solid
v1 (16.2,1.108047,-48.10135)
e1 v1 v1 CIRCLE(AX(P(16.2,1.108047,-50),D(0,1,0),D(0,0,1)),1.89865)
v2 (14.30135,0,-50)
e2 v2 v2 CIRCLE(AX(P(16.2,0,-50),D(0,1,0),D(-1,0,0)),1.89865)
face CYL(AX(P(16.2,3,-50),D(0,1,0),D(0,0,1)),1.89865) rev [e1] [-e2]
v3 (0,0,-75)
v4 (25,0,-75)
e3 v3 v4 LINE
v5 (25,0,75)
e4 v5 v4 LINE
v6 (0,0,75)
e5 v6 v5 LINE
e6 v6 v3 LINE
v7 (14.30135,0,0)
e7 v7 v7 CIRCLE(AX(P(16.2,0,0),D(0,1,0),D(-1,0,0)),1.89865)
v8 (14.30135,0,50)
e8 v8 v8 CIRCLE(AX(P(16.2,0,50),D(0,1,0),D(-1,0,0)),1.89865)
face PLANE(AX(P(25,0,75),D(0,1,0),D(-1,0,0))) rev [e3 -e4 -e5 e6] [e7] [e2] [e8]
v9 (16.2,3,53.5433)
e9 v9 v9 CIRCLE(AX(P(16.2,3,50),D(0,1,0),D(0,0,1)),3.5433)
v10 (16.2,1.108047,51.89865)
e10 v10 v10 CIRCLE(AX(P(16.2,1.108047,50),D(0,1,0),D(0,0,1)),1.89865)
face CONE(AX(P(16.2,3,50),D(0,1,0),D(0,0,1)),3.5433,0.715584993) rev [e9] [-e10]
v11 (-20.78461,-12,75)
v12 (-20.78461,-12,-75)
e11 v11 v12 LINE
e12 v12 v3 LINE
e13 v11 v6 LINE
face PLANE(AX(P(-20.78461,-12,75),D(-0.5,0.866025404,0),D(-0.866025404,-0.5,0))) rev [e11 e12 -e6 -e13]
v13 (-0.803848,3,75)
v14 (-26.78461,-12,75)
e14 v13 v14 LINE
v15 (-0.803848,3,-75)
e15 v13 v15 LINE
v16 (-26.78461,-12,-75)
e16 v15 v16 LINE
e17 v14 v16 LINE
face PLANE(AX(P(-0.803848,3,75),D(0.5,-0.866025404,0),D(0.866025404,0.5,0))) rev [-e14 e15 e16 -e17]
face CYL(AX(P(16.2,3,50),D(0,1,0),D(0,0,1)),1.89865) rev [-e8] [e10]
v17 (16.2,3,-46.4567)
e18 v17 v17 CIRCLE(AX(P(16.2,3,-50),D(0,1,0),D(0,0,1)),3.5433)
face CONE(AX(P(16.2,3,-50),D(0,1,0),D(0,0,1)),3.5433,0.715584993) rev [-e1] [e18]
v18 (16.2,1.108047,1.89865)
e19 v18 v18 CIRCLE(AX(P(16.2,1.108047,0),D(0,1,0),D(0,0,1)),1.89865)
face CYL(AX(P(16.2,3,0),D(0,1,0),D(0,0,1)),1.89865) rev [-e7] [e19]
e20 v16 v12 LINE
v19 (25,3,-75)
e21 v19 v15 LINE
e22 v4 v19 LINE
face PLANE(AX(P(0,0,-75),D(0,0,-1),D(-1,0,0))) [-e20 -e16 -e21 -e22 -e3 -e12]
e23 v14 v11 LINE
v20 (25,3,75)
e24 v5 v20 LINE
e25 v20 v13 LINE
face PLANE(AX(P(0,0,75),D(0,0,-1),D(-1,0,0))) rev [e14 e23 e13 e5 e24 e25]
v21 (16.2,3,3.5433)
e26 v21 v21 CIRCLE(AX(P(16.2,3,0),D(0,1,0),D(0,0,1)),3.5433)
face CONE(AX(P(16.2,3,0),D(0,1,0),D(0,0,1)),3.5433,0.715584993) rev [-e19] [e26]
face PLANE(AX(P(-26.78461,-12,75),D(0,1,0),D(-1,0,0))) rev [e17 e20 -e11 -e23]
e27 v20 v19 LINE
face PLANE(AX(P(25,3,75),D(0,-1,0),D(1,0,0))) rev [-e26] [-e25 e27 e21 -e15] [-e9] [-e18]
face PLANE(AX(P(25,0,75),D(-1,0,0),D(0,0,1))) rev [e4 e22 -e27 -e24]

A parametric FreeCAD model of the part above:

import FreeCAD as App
import Part
import Sketcher

V = App.Vector
Q = App.Units.Quantity


def add_polygon(sketch, points):
    """Adds a closed chain of lines whose ends are joined by coincident constraints."""
    first, n = sketch.GeometryCount, len(points)
    for a, b in zip(points, points[1:] + points[:1]):
        sketch.addGeometry(Part.LineSegment(App.Vector(*a, 0), App.Vector(*b, 0)), False)
    for i in range(n):
        sketch.addConstraint(Sketcher.Constraint("Coincident", first + i, 2, first + (i + 1) % n, 1))

doc = App.newDocument("Part")
body = doc.addObject("PartDesign::Body", "Body")

# Sketch on XY plane
sketch1 = body.newObject("Sketcher::SketchObject", "Sketch")
sketch1.AttachmentSupport = (doc.getObject("XY_Plane"), [""])
sketch1.MapMode = "FlatFace"
add_polygon(sketch1, [(25, 0), (25, 3), (-0.803848, 3), (-26.78461, -12), (-20.78461, -12), (0, 0)])  # lines 0-5
sketch1.addConstraint([
    Sketcher.Constraint("Vertical", 0),
    Sketcher.Constraint("Horizontal", 1),
    Sketcher.Constraint("Horizontal", 3),
    Sketcher.Constraint("Horizontal", 5),
    Sketcher.Constraint("Coincident", 4, 2, -1, 1),
    Sketcher.Constraint("Parallel", 2, 4),
    Sketcher.Constraint("DistanceX", 3, 1, 3, 2, 6.0),
    Sketcher.Constraint("DistanceX", 5, 1, 5, 2, 25.0),
    Sketcher.Constraint("DistanceY", 0, 1, 0, 2, 3.0),
    Sketcher.Constraint("Angle", 2, Q("-150 deg")),
    Sketcher.Constraint("Distance", 2, 30.0),
])
pad1 = body.newObject("PartDesign::Pad", "Pad")
pad1.Profile = sketch1
pad1.Length = 150
pad1.Midplane = True

# Sketch on XZ plane
sketch2 = body.newObject("Sketcher::SketchObject", "Sketch001")
sketch2.AttachmentSupport = (doc.getObject("XZ_Plane"), [""])
sketch2.MapMode = "FlatFace"
sketch2.AttachmentOffset = App.Placement(V(0, 0, -3), App.Rotation())
sketch2.addGeometry([
    Part.Circle(V(16.2, -50, 0), V(0, 0, 1), 1.89865),
    Part.Circle(V(16.2, 0, 0), V(0, 0, 1), 1.89865),
    Part.Circle(V(16.2, 50, 0), V(0, 0, 1), 1.89865),
], False)
sketch2.addConstraint([
    Sketcher.Constraint("Equal", 0, 1),
    Sketcher.Constraint("Equal", 1, 2),
    Sketcher.Constraint("Symmetric", 0, 3, 2, 3, -1),
    Sketcher.Constraint("PointOnObject", 1, 3, -1),
    Sketcher.Constraint("Vertical", 0, 3, 1, 3),
    Sketcher.Constraint("DistanceY", 0, 3, -1, 1, 50.0),
    Sketcher.Constraint("Diameter", 0, 3.7973),
    Sketcher.Constraint("DistanceX", -1, 1, 0, 3, 16.2),
])
doc.recompute()
hole = body.newObject("PartDesign::Hole", "Hole")
hole.Profile = sketch2
hole.ThreadType = "None"
hole.Diameter = 3.7973
hole.DepthType = "Dimension"
hole.Depth = 20
hole.DrillPoint = "Angled"
hole.DrillPointAngle = 118
hole.HoleCutType = "Countersink"
hole.HoleCutDiameter = 7.0866
hole.HoleCutCountersinkAngle = 82
hole.Reversed = True

doc.recompute()
